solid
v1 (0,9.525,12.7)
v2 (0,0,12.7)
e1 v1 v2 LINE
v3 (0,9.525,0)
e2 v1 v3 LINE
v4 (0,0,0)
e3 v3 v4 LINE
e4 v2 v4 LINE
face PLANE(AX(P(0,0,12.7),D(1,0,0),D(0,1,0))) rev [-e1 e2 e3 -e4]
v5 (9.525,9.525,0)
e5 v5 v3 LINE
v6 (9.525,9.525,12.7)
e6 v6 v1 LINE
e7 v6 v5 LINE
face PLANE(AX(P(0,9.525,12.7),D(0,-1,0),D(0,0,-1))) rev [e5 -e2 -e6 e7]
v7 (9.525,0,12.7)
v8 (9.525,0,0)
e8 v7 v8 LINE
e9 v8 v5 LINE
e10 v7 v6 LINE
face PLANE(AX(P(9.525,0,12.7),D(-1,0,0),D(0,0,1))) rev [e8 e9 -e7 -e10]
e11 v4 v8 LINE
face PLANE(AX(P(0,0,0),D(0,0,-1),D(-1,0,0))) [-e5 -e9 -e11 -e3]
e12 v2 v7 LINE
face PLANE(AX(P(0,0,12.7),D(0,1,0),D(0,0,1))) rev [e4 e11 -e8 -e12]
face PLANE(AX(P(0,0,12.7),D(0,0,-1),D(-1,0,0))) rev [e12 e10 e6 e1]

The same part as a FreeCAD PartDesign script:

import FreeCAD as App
import Part
import Sketcher
Q = App.Units.Quantity


def add_polygon(sketch, points):
    """Adds a closed chain of lines whose ends are joined by coincident constraints."""
    first, n = sketch.GeometryCount, len(points)
    for a, b in zip(points, points[1:] + points[:1]):
        sketch.addGeometry(Part.LineSegment(App.Vector(*a, 0), App.Vector(*b, 0)), False)
    for i in range(n):
        sketch.addConstraint(Sketcher.Constraint("Coincident", first + i, 2, first + (i + 1) % n, 1))

doc = App.newDocument("Part")
params = doc.addObject("Spreadsheet::Sheet", "Params")
for row, (alias, value) in enumerate([
    ("sketch1_width", "0.375 in"),
    ("pad1_length", "0.5 in"),
], start=1):
    params.set(f"A{row}", alias)
    params.set(f"B{row}", "=" + value)
    params.setAlias(f"B{row}", alias)

body = doc.addObject("PartDesign::Body", "Body")

sketch1 = body.newObject("Sketcher::SketchObject", "Sketch")
sketch1.AttachmentSupport = (doc.getObject("XY_Plane"), [""])
sketch1.MapMode = "FlatFace"
add_polygon(sketch1, [(0, 9.525), (0, 0), (9.525, 0), (9.525, 9.525)])
sketch1.addConstraint(Sketcher.Constraint("Vertical", 0))
sketch1.addConstraint(Sketcher.Constraint("Horizontal", 1))
sketch1.addConstraint(Sketcher.Constraint("Vertical", 2))
sketch1.addConstraint(Sketcher.Constraint("Horizontal", 3))
sketch1.addConstraint(Sketcher.Constraint("Coincident", 0, 2, -1, 1))
sketch1.addConstraint(Sketcher.Constraint("Equal", 3, 0))
sketch1.addConstraint(Sketcher.Constraint("DistanceX", 1, 1, 1, 2, Q("0.375 in")))
sketch1.setExpression("Constraints[10]", "Params.sketch1_width")
pad1 = body.newObject("PartDesign::Pad", "Pad")
pad1.Profile = sketch1
pad1.setExpression("Length", "Params.pad1_length")

doc.recompute()
